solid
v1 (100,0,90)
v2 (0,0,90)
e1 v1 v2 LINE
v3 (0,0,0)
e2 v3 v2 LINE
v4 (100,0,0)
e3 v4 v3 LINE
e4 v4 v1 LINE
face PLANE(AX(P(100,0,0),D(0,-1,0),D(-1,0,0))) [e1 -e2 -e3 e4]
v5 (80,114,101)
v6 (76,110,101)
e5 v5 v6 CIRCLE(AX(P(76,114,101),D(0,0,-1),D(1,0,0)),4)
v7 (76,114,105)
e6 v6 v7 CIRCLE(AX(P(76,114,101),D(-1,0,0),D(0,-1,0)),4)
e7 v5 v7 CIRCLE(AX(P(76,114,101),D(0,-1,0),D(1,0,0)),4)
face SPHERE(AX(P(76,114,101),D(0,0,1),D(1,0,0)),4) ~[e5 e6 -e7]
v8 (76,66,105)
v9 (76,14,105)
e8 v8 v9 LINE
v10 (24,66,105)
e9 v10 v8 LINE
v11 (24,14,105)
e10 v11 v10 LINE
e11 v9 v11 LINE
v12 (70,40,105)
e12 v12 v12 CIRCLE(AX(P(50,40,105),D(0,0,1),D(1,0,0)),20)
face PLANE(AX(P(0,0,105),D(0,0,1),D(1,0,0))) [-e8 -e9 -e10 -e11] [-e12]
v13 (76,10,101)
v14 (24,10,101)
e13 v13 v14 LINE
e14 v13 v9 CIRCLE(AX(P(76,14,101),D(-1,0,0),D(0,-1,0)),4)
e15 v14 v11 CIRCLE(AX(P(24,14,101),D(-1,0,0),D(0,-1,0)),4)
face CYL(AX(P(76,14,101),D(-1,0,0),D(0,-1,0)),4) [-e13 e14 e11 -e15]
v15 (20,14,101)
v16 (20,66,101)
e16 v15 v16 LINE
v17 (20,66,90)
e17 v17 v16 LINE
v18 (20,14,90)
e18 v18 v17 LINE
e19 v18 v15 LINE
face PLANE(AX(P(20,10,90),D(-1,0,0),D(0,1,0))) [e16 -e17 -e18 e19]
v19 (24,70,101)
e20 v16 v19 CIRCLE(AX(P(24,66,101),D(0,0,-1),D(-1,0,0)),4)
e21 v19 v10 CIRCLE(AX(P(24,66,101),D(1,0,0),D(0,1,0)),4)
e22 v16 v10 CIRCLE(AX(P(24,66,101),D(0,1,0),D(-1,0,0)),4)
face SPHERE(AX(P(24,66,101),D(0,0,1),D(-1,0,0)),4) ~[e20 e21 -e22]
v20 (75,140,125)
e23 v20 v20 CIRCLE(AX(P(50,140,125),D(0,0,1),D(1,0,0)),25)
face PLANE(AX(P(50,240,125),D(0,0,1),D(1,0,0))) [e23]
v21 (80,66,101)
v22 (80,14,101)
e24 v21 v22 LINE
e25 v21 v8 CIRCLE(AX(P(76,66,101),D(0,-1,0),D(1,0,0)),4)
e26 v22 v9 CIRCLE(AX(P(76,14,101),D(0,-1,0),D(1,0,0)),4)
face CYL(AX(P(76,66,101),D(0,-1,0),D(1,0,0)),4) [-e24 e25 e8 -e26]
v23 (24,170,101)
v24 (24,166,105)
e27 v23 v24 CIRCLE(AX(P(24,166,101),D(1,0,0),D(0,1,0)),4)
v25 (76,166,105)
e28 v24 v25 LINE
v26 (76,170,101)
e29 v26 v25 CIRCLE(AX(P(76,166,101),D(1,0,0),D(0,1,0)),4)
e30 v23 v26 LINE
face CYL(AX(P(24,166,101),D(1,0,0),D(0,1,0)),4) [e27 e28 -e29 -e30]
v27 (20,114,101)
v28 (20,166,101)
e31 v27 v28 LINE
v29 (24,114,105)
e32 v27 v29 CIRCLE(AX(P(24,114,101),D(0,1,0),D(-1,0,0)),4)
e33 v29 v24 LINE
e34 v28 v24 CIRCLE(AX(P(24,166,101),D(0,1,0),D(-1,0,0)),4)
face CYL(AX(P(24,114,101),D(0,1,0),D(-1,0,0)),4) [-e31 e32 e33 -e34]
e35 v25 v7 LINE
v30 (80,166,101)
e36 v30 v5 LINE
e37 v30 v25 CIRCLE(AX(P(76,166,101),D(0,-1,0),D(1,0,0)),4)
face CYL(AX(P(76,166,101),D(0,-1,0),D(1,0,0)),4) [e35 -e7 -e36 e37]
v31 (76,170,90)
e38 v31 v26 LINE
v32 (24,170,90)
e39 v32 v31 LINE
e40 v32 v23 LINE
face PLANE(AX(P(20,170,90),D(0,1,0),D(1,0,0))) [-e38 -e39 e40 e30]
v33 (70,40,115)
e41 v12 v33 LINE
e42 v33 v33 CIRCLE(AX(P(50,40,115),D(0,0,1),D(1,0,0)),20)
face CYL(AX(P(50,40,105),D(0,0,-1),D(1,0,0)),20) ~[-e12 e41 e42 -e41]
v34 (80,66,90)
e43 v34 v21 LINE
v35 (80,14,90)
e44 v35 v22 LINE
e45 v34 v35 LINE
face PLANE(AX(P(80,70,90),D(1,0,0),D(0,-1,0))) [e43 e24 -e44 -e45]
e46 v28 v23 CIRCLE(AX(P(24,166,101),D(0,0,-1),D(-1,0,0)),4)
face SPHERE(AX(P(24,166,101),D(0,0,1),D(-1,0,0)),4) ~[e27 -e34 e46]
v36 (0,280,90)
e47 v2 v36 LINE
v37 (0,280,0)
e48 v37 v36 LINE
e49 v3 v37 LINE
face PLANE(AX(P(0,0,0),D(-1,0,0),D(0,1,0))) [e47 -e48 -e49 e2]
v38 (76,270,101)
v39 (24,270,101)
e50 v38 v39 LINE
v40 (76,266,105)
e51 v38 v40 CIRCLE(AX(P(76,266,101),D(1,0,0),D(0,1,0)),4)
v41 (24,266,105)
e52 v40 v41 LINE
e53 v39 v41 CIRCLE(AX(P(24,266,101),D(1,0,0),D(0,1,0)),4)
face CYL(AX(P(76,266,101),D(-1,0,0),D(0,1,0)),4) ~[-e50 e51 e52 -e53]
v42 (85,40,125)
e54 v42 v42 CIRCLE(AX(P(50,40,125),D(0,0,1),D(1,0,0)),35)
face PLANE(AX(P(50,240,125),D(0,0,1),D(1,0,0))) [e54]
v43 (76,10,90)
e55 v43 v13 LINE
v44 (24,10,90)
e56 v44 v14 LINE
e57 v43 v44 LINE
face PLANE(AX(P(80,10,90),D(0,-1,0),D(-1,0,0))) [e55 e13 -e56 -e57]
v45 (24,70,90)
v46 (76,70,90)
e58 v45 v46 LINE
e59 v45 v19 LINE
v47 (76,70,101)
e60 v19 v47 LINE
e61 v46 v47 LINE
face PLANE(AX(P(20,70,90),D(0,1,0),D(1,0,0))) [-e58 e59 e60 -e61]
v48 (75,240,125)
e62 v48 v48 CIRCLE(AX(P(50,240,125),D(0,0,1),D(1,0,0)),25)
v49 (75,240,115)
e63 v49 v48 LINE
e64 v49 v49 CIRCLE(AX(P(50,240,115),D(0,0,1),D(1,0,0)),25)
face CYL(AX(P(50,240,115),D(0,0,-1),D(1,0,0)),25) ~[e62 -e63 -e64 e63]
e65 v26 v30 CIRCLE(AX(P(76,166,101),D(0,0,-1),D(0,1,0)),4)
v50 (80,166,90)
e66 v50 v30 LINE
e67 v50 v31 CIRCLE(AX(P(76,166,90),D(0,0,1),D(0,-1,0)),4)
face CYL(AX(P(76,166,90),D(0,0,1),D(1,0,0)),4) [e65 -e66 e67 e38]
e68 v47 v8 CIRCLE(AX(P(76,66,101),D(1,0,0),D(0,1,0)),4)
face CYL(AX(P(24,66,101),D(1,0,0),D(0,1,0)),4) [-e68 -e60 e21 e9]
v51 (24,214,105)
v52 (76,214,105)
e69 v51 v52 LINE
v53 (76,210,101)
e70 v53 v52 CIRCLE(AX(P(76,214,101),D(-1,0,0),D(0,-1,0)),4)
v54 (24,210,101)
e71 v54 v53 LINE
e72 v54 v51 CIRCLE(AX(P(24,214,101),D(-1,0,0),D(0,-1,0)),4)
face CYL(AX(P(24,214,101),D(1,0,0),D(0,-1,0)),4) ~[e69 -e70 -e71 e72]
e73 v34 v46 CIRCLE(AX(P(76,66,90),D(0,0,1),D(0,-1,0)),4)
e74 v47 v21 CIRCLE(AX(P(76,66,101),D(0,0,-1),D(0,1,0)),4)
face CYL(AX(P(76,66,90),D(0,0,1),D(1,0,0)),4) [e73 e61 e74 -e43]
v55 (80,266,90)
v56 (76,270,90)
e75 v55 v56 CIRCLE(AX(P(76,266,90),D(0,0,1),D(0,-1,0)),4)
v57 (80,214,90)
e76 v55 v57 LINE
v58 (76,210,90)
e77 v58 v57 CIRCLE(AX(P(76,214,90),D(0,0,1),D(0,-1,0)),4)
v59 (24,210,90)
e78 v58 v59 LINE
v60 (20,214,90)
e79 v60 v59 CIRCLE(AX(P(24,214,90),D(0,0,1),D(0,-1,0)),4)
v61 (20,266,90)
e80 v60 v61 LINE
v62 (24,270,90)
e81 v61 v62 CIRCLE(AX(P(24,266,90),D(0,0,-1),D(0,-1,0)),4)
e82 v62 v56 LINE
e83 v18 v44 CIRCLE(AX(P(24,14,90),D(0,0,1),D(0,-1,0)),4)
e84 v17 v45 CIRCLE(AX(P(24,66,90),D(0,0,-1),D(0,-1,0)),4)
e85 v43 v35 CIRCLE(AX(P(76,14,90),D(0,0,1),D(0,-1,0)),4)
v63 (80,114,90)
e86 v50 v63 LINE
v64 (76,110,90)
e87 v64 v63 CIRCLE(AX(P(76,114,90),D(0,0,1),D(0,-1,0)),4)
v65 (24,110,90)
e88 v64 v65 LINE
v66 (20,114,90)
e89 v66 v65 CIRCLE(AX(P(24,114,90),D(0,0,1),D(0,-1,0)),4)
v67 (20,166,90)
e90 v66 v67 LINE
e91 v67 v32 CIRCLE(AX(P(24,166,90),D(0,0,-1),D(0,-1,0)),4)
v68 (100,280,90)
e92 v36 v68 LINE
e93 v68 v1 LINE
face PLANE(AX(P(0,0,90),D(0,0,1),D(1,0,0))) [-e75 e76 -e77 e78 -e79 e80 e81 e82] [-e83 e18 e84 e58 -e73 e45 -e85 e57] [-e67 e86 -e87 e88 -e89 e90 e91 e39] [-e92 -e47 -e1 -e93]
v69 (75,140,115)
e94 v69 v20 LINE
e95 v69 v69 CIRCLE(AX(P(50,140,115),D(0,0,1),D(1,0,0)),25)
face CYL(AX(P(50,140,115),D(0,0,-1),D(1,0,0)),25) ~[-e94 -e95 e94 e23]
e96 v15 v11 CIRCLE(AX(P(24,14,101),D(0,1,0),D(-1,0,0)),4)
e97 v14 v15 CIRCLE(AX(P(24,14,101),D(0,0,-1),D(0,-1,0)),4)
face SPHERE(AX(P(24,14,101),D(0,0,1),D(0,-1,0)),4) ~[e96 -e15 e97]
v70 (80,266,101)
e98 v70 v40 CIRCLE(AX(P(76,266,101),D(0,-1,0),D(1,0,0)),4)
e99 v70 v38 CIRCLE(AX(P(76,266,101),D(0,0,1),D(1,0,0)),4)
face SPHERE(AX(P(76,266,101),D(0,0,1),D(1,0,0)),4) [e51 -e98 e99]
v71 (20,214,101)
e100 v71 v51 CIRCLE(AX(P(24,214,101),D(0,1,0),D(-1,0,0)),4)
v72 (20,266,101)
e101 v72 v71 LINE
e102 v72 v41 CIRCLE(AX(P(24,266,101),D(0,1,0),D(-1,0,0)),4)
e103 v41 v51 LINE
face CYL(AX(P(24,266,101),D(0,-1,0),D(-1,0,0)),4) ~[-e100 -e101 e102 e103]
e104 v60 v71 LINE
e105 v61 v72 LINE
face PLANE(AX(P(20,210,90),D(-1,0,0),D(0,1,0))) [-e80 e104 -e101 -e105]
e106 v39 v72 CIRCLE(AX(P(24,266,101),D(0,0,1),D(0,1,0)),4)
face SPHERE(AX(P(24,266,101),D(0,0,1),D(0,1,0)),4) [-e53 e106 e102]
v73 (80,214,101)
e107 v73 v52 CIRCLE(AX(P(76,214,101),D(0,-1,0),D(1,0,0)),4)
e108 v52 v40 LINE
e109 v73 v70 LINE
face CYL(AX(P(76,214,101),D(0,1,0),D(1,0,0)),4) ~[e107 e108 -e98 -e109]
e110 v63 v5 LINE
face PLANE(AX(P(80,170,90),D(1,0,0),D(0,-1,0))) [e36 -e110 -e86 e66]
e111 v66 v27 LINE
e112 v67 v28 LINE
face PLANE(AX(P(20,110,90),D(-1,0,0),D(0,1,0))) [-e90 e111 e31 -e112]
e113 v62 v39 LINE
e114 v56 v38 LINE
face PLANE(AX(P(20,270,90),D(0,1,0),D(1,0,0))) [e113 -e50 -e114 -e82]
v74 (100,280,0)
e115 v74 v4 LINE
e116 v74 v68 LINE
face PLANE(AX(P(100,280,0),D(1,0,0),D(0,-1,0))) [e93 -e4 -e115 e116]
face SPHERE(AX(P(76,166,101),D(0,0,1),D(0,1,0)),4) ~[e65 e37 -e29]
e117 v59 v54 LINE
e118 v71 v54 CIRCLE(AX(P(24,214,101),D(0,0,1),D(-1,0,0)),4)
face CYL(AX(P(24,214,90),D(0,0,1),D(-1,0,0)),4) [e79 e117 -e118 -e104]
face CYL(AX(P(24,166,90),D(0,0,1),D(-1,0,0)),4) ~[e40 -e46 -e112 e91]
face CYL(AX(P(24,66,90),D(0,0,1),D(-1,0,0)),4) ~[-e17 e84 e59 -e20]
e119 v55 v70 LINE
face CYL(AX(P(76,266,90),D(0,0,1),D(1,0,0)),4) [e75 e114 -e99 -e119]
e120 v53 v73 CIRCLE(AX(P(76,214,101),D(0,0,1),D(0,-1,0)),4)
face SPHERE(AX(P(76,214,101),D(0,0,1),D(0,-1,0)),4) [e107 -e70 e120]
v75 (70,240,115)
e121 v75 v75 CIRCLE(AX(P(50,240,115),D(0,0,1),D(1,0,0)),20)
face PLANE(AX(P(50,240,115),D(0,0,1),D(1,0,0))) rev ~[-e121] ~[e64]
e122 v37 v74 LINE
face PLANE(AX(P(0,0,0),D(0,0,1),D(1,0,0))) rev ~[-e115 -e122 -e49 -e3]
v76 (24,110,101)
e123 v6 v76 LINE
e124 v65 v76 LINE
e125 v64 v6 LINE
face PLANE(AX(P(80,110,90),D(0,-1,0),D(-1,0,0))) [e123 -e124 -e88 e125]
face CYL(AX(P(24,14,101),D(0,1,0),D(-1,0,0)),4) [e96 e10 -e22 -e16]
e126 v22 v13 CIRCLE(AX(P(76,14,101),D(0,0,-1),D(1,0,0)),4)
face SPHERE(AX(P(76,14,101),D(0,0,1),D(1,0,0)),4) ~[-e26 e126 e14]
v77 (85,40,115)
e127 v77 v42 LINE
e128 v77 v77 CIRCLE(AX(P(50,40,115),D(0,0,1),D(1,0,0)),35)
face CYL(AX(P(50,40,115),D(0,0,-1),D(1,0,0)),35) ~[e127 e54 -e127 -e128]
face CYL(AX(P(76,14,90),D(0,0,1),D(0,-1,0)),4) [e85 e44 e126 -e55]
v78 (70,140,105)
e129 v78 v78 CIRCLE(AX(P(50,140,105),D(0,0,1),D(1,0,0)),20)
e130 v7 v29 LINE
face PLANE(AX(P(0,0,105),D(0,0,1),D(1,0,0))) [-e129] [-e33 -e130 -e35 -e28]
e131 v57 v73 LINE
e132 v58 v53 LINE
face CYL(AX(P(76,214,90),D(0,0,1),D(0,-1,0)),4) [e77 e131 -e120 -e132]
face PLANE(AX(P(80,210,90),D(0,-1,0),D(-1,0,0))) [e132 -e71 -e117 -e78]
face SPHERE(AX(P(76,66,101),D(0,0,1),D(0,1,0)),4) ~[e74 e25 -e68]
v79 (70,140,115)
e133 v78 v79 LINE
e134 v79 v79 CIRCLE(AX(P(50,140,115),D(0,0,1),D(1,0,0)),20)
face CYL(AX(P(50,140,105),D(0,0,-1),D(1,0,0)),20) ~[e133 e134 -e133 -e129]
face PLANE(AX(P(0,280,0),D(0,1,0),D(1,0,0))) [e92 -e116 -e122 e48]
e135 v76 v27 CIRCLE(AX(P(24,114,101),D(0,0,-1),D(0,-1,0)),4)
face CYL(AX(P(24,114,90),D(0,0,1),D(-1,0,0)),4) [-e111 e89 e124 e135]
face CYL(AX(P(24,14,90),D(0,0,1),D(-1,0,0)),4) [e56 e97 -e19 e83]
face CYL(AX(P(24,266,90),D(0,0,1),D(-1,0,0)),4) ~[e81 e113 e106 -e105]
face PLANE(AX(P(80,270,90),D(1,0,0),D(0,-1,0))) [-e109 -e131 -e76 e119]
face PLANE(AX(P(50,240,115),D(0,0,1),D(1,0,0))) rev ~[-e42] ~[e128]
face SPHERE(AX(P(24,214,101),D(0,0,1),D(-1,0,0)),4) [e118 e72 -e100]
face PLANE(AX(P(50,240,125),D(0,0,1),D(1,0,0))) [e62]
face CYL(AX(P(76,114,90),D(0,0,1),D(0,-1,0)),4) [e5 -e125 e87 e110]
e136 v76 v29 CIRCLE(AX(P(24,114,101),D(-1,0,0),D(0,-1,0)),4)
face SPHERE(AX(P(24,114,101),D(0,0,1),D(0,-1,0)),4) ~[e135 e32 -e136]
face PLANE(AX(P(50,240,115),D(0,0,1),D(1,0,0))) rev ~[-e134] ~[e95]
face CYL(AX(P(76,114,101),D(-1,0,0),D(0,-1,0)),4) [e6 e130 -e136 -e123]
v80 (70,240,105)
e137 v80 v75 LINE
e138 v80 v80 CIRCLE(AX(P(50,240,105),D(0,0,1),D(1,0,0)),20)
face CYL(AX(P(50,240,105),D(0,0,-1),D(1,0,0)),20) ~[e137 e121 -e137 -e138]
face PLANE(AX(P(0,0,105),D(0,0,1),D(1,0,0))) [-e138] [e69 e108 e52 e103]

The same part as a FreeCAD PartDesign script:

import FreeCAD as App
import Part
import Sketcher
from FreeCAD import Vector


def edges_at(feature, points):
    """Names of the edges that pass closest to the given points."""
    edges = feature.Shape.Edges
    near = lambda p: min(range(len(edges)), key=lambda i: edges[i].distToShape(Part.Vertex(*p))[0])
    return sorted({f"Edge{near(p) + 1}" for p in points})

doc = App.newDocument("Part")
body = doc.addObject("PartDesign::Body", "Body")

# Sketch on XY plane
sketch1 = body.newObject("Sketcher::SketchObject", "Sketch")
sketch1.AttachmentSupport = (doc.getObject("XY_Plane"), [""])
sketch1.MapMode = "FlatFace"
sketch1.addGeometry([
    Part.LineSegment(Vector(100, 280, 0), Vector(0, 280, 0)),
    Part.LineSegment(Vector(0, 280, 0), Vector(0, 0, 0)),
    Part.LineSegment(Vector(0, 0, 0), Vector(100, 0, 0)),
    Part.LineSegment(Vector(100, 0, 0), Vector(100, 280, 0)),
], False)
sketch1.addConstraint([
    Sketcher.Constraint("Coincident", 0, 2, 1, 1),
    Sketcher.Constraint("Coincident", 1, 2, 2, 1),
    Sketcher.Constraint("Coincident", 2, 2, 3, 1),
    Sketcher.Constraint("Coincident", 3, 2, 0, 1),
    Sketcher.Constraint("Horizontal", 0),
    Sketcher.Constraint("Vertical", 1),
    Sketcher.Constraint("Horizontal", 2),
    Sketcher.Constraint("Vertical", 3),
    Sketcher.Constraint("Coincident", 1, 2, -1, 1),
    Sketcher.Constraint("DistanceX", 0, 2, 0, 1, 100.0),
    Sketcher.Constraint("DistanceY", 1, 2, 1, 1, 280.0),
])
pad1 = body.newObject("PartDesign::Pad", "Pad")
pad1.Profile = sketch1
pad1.Length = 90

# Sketch on XY plane
sketch2 = body.newObject("Sketcher::SketchObject", "Sketch001")
sketch2.AttachmentSupport = (doc.getObject("XY_Plane"), [""])
sketch2.MapMode = "FlatFace"
sketch2.AttachmentOffset = App.Placement(Vector(0, 0, 90), App.Rotation())
sketch2.addGeometry([
    Part.LineSegment(Vector(80, 270, 0), Vector(20, 270, 0)),  # 0
    Part.LineSegment(Vector(20, 270, 0), Vector(20, 210, 0)),  # 1
    Part.LineSegment(Vector(20, 210, 0), Vector(80, 210, 0)),  # 2
    Part.LineSegment(Vector(80, 210, 0), Vector(80, 270, 0)),  # 3
    Part.LineSegment(Vector(80, 170, 0), Vector(20, 170, 0)),  # 4
    Part.LineSegment(Vector(20, 170, 0), Vector(20, 110, 0)),  # 5
    Part.LineSegment(Vector(20, 110, 0), Vector(80, 110, 0)),  # 6
    Part.LineSegment(Vector(80, 110, 0), Vector(80, 170, 0)),  # 7
    Part.LineSegment(Vector(80, 70, 0), Vector(20, 70, 0)),  # 8
    Part.LineSegment(Vector(20, 70, 0), Vector(20, 10, 0)),  # 9
    Part.LineSegment(Vector(20, 10, 0), Vector(80, 10, 0)),  # 10
    Part.LineSegment(Vector(80, 10, 0), Vector(80, 70, 0)),  # 11
], False)
sketch2.addConstraint([
    Sketcher.Constraint("Coincident", 0, 2, 1, 1),
    Sketcher.Constraint("Coincident", 1, 2, 2, 1),
    Sketcher.Constraint("Coincident", 2, 2, 3, 1),
    Sketcher.Constraint("Coincident", 3, 2, 0, 1),
    Sketcher.Constraint("Coincident", 4, 2, 5, 1),
    Sketcher.Constraint("Coincident", 5, 2, 6, 1),
    Sketcher.Constraint("Coincident", 6, 2, 7, 1),
    Sketcher.Constraint("Coincident", 7, 2, 4, 1),
    Sketcher.Constraint("Coincident", 8, 2, 9, 1),
    Sketcher.Constraint("Coincident", 9, 2, 10, 1),
    Sketcher.Constraint("Coincident", 10, 2, 11, 1),
    Sketcher.Constraint("Coincident", 11, 2, 8, 1),
    Sketcher.Constraint("Horizontal", 0),
    Sketcher.Constraint("Vertical", 1),
    Sketcher.Constraint("Horizontal", 2),
    Sketcher.Constraint("Vertical", 3),
    Sketcher.Constraint("Horizontal", 4),
    Sketcher.Constraint("Vertical", 5),
    Sketcher.Constraint("Horizontal", 6),
    Sketcher.Constraint("Vertical", 7),
    Sketcher.Constraint("Horizontal", 8),
    Sketcher.Constraint("Vertical", 9),
    Sketcher.Constraint("Horizontal", 10),
    Sketcher.Constraint("Vertical", 11),
    Sketcher.Constraint("Vertical", 1, 2, 4, 2),
    Sketcher.Constraint("Vertical", 3, 2, 6, 2),
    Sketcher.Constraint("Vertical", 5, 2, 8, 2),
    Sketcher.Constraint("Vertical", 7, 2, 10, 2),
    Sketcher.Constraint("Equal", 10, 1),
    Sketcher.Constraint("Equal", 3, 5),
    Sketcher.Constraint("Equal", 7, 9),
    Sketcher.Constraint("DistanceX", -1, 1, 0, 2, 20.0),
    Sketcher.Constraint("DistanceY", -1, 1, 0, 2, 270.0),
    Sketcher.Constraint("DistanceY", -1, 1, 1, 2, 210.0),
    Sketcher.Constraint("DistanceY", -1, 1, 4, 2, 170.0),
    Sketcher.Constraint("DistanceY", -1, 1, 8, 2, 70.0),
])
pad2 = body.newObject("PartDesign::Pad", "Pad001")
pad2.Profile = sketch2
pad2.Length = 15
doc.recompute()

fillet = body.newObject("PartDesign::Fillet", "Fillet")
fillet.Base = (pad2, edges_at(pad2, [
    (80, 270, 97.5),
    (80, 170, 97.5),
    (80, 70, 97.5),
    (80, 210, 97.5),
    (80, 110, 97.5),
    (80, 10, 97.5),
    (20, 270, 97.5),
    (20, 210, 97.5),
    (20, 170, 97.5),
    (20, 110, 97.5),
    (20, 70, 97.5),
    (20, 10, 97.5),
]))
fillet.Radius = 4
doc.recompute()

fillet2 = body.newObject("PartDesign::Fillet", "Fillet001")
fillet2.Base = (fillet, edges_at(fillet, [
    (78.828, 268.828, 105),
    (50, 270, 105),
    (21.172, 268.828, 105),
    (20, 240, 105),
    (21.172, 211.172, 105),
    (50, 210, 105),
    (78.828, 211.172, 105),
    (80, 240, 105),
    (21.172, 168.828, 105),
    (20, 140, 105),
    (21.172, 111.172, 105),
    (50, 110, 105),
    (78.828, 111.172, 105),
    (80, 140, 105),
    (78.828, 168.828, 105),
    (50, 170, 105),
    (21.172, 68.828, 105),
    (20, 40, 105),
    (21.172, 11.172, 105),
    (50, 10, 105),
    (78.828, 11.172, 105),
    (80, 40, 105),
    (78.828, 68.828, 105),
    (50, 70, 105),
]))
fillet2.Radius = 4

# Sketch on XY plane
sketch3 = body.newObject("Sketcher::SketchObject", "Sketch002")
sketch3.AttachmentSupport = (doc.getObject("XY_Plane"), [""])
sketch3.MapMode = "FlatFace"
sketch3.AttachmentOffset = App.Placement(Vector(0, 0, 105), App.Rotation())
sketch3.addGeometry([
    Part.Circle(Vector(50, 240, 0), Vector(0, 0, 1), 20),
    Part.Circle(Vector(50, 140, 0), Vector(0, 0, 1), 20),
    Part.Circle(Vector(50, 40, 0), Vector(0, 0, 1), 20),
], False)
sketch3.addConstraint([
    Sketcher.Constraint("Equal", 0, 1),
    Sketcher.Constraint("Equal", 1, 2),
    Sketcher.Constraint("Vertical", 0, 3, 1, 3),
    Sketcher.Constraint("Vertical", 1, 3, 2, 3),
    Sketcher.Constraint("Diameter", 0, 40.0),
    Sketcher.Constraint("DistanceX", -1, 1, 0, 3, 50.0),
    Sketcher.Constraint("DistanceY", -1, 1, 0, 3, 240.0),
    Sketcher.Constraint("DistanceY", -1, 1, 2, 3, 40.0),
    Sketcher.Constraint("DistanceY", 1, 3, 0, 3, 100.0),
])
pad3 = body.newObject("PartDesign::Pad", "Pad002")
pad3.Profile = sketch3
pad3.Length = 10

# Sketch on XY plane
sketch4 = body.newObject("Sketcher::SketchObject", "Sketch003")
sketch4.AttachmentSupport = (doc.getObject("XY_Plane"), [""])
sketch4.MapMode = "FlatFace"
sketch4.AttachmentOffset = App.Placement(Vector(0, 0, 115), App.Rotation())
sketch4.addGeometry([
    Part.Circle(Vector(50, 240, 0), Vector(0, 0, 1), 25),
    Part.Circle(Vector(50, 140, 0), Vector(0, 0, 1), 25),
    Part.Circle(Vector(50, 40, 0), Vector(0, 0, 1), 35),
], False)
sketch4.addConstraint([
    Sketcher.Constraint("Equal", 0, 1),
    Sketcher.Constraint("Vertical", 0, 3, 1, 3),
    Sketcher.Constraint("Vertical", 1, 3, 2, 3),
    Sketcher.Constraint("Diameter", 0, 50.0),
    Sketcher.Constraint("Diameter", 2, 70.0),
    Sketcher.Constraint("DistanceX", -1, 1, 0, 3, 50.0),
    Sketcher.Constraint("DistanceY", 1, 3, 0, 3, 100.0),
    Sketcher.Constraint("DistanceY", 2, 3, 1, 3, 100.0),
    Sketcher.Constraint("DistanceY", -1, 1, 0, 3, 240.0),
])
pad4 = body.newObject("PartDesign::Pad", "Pad003")
pad4.Profile = sketch4
pad4.Length = 10

doc.recompute()
